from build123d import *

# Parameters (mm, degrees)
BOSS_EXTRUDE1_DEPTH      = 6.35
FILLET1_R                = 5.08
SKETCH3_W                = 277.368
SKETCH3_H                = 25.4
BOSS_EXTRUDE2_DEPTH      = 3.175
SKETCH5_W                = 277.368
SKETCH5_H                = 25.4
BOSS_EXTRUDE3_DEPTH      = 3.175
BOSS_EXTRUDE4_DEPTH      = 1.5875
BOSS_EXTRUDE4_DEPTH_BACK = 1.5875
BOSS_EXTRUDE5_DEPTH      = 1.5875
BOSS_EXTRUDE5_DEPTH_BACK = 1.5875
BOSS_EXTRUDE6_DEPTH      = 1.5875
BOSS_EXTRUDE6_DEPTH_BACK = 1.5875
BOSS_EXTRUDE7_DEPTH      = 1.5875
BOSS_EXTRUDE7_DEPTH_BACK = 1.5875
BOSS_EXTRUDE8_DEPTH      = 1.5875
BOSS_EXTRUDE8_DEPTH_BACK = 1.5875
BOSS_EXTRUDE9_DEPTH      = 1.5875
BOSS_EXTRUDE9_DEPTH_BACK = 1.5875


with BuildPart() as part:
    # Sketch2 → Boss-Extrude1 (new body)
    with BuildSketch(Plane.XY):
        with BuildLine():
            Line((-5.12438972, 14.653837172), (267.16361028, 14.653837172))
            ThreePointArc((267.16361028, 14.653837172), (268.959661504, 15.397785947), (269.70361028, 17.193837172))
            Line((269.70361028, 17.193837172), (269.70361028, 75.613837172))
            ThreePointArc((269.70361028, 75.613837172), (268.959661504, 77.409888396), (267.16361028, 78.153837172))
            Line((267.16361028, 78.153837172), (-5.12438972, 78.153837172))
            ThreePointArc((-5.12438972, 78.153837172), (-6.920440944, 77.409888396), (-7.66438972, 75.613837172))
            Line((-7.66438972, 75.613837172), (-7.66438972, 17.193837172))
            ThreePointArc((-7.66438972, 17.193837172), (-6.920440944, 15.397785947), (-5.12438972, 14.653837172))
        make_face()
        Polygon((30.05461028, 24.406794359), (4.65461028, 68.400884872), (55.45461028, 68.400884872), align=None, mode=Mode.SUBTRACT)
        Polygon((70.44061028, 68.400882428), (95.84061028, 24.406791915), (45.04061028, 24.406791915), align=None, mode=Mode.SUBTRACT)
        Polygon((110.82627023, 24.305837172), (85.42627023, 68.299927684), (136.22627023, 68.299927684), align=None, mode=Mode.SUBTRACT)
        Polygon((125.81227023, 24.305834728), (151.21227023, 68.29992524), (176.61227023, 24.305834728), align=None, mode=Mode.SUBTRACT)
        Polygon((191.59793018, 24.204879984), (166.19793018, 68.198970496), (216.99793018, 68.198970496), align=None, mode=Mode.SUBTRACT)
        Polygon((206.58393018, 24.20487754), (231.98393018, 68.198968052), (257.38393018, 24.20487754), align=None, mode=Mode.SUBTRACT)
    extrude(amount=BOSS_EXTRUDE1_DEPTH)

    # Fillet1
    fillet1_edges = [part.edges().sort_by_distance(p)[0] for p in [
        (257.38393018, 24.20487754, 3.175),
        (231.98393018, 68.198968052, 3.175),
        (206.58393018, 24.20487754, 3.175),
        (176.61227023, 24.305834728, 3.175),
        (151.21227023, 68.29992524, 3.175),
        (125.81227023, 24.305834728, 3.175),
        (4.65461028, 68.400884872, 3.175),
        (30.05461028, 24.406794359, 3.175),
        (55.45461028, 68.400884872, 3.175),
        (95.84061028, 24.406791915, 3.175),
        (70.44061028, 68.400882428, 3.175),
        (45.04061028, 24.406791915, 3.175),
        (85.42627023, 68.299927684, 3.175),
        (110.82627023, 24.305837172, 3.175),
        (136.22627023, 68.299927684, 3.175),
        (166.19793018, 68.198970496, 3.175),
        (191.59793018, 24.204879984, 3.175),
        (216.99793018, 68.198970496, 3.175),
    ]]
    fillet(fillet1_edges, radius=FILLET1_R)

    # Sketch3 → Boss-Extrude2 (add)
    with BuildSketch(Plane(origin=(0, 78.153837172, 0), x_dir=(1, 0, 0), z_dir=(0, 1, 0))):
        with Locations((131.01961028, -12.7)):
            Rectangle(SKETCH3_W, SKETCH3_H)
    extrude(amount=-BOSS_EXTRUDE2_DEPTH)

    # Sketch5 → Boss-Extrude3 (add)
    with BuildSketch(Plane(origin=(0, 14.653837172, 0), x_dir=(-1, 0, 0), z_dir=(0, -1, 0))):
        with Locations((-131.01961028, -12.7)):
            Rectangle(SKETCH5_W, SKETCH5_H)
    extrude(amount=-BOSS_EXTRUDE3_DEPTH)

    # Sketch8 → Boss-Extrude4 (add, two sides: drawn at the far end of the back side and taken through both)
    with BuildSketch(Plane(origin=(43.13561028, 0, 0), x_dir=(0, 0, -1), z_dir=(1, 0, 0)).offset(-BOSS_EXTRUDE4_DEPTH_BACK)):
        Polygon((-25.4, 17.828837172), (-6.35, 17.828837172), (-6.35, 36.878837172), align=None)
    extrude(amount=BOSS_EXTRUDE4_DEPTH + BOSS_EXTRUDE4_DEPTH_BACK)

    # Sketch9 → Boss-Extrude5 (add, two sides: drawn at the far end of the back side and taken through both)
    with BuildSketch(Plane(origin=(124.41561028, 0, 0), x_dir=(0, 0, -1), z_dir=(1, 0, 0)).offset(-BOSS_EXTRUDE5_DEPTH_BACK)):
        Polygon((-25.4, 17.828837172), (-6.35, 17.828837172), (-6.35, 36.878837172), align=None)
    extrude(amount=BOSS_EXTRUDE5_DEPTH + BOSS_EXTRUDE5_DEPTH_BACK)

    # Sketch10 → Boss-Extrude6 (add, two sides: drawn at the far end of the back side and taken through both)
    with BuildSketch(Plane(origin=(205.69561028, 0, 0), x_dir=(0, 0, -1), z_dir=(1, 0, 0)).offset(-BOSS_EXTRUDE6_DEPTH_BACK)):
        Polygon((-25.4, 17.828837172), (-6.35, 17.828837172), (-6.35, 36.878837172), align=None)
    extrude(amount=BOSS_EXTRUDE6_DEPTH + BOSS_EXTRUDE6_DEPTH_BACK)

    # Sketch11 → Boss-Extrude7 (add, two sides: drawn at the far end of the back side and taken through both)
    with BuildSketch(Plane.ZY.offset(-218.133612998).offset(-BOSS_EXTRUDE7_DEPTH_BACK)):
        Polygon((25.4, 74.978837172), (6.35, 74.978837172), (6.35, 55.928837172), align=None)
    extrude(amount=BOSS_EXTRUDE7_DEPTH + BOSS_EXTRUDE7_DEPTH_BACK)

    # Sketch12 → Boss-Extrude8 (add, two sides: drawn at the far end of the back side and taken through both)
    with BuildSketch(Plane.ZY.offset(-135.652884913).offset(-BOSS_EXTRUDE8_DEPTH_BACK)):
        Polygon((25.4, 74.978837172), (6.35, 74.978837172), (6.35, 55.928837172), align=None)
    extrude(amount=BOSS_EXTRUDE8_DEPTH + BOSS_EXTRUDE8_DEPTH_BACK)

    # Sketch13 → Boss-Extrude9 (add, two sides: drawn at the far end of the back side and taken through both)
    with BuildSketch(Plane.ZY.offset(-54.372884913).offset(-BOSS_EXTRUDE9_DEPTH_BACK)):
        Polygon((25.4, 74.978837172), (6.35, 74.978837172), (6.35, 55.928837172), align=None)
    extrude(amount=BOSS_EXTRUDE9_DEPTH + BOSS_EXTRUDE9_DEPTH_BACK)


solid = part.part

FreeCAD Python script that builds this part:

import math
import FreeCAD as App
import Part
import Sketcher
from FreeCAD import Vector
Q = App.Units.Quantity


def edges_at(feature, points):
    """Names of the edges that pass closest to the given points."""
    edges = feature.Shape.Edges
    near = lambda p: min(range(len(edges)), key=lambda i: edges[i].distToShape(Part.Vertex(*p))[0])
    return sorted({f"Edge{near(p) + 1}" for p in points})


def add_polygon(sketch, points):
    """Adds a closed chain of lines whose ends are joined by coincident constraints."""
    first, n = sketch.GeometryCount, len(points)
    for a, b in zip(points, points[1:] + points[:1]):
        sketch.addGeometry(Part.LineSegment(App.Vector(*a, 0), App.Vector(*b, 0)), False)
    for i in range(n):
        sketch.addConstraint(Sketcher.Constraint("Coincident", first + i, 2, first + (i + 1) % n, 1))

doc = App.newDocument("Part")
body = doc.addObject("PartDesign::Body", "Body")

# Sketch on XY plane
sketch1 = doc.addObject("Sketcher::SketchObject", "Sketch")
body.addObject(sketch1)
sketch1.AttachmentSupport = (doc.XY_Plane, [""])
sketch1.MapMode = "FlatFace"
sketch1.addGeometry(Part.LineSegment(Vector(-5.12439, 14.653837, 0), Vector(267.16361, 14.653837, 0)), False)  # 0
sketch1.addGeometry(Part.ArcOfCircle(Part.Circle(Vector(267.16361, 17.193837, 0), Vector(0, 0, 1), 2.54), math.radians(-90), math.radians(0)), False)  # 1
sketch1.addGeometry(Part.LineSegment(Vector(269.70361, 17.193837, 0), Vector(269.70361, 75.613837, 0)), False)  # 2
sketch1.addGeometry(Part.ArcOfCircle(Part.Circle(Vector(267.16361, 75.613837, 0), Vector(0, 0, 1), 2.54), math.radians(0), math.radians(90)), False)  # 3
sketch1.addGeometry(Part.LineSegment(Vector(267.16361, 78.153837, 0), Vector(-5.12439, 78.153837, 0)), False)  # 4
sketch1.addGeometry(Part.ArcOfCircle(Part.Circle(Vector(-5.12439, 75.613837, 0), Vector(0, 0, 1), 2.54), math.radians(90), math.radians(180)), False)  # 5
sketch1.addGeometry(Part.LineSegment(Vector(-7.66439, 75.613837, 0), Vector(-7.66439, 17.193837, 0)), False)  # 6
sketch1.addGeometry(Part.ArcOfCircle(Part.Circle(Vector(-5.12439, 17.193837, 0), Vector(0, 0, 1), 2.54), math.radians(180), math.radians(270)), False)  # 7
add_polygon(sketch1, [(176.61227, 24.305835), (125.81227, 24.305835), (151.21227, 68.299925)])  # lines 8-10
add_polygon(sketch1, [(216.99793, 68.19897), (191.59793, 24.20488), (166.19793, 68.19897)])  # lines 11-13
add_polygon(sketch1, [(257.38393, 24.204878), (206.58393, 24.204878), (231.98393, 68.198968)])  # lines 14-16
add_polygon(sketch1, [(55.45461, 68.400885), (30.05461, 24.406794), (4.65461, 68.400885)])  # lines 17-19
add_polygon(sketch1, [(45.04061, 24.406792), (70.44061, 68.400882), (95.84061, 24.406792)])  # lines 20-22
add_polygon(sketch1, [(136.22627, 68.299928), (110.82627, 24.305837), (85.42627, 68.299928)])  # lines 23-25
sketch1.addConstraint(Sketcher.Constraint("Tangent", 0, 2, 1, 1))
sketch1.addConstraint(Sketcher.Constraint("Tangent", 1, 2, 2, 1))
sketch1.addConstraint(Sketcher.Constraint("Tangent", 2, 2, 3, 1))
sketch1.addConstraint(Sketcher.Constraint("Tangent", 3, 2, 4, 1))
sketch1.addConstraint(Sketcher.Constraint("Tangent", 4, 2, 5, 1))
sketch1.addConstraint(Sketcher.Constraint("Tangent", 5, 2, 6, 1))
sketch1.addConstraint(Sketcher.Constraint("Tangent", 6, 2, 7, 1))
sketch1.addConstraint(Sketcher.Constraint("Tangent", 7, 2, 0, 1))
sketch1.addConstraint(Sketcher.Constraint("Horizontal", 0))
sketch1.addConstraint(Sketcher.Constraint("Vertical", 2))
sketch1.addConstraint(Sketcher.Constraint("Horizontal", 4))
sketch1.addConstraint(Sketcher.Constraint("Vertical", 6))
sketch1.addConstraint(Sketcher.Constraint("Horizontal", 8))
sketch1.addConstraint(Sketcher.Constraint("Horizontal", 13))
sketch1.addConstraint(Sketcher.Constraint("Horizontal", 14))
sketch1.addConstraint(Sketcher.Constraint("Horizontal", 19))
sketch1.addConstraint(Sketcher.Constraint("Horizontal", 22))
sketch1.addConstraint(Sketcher.Constraint("Horizontal", 25))
sketch1.addConstraint(Sketcher.Constraint("Equal", 1, 3))
sketch1.addConstraint(Sketcher.Constraint("Equal", 3, 5))
sketch1.addConstraint(Sketcher.Constraint("Equal", 5, 7))
sketch1.addConstraint(Sketcher.Constraint("Parallel", 9, 11))
sketch1.addConstraint(Sketcher.Constraint("Parallel", 10, 12))
sketch1.addConstraint(Sketcher.Constraint("Parallel", 11, 15))
sketch1.addConstraint(Sketcher.Constraint("Parallel", 12, 16))
sketch1.addConstraint(Sketcher.Constraint("Parallel", 15, 17))
sketch1.addConstraint(Sketcher.Constraint("Parallel", 16, 18))
sketch1.addConstraint(Sketcher.Constraint("Parallel", 17, 20))
sketch1.addConstraint(Sketcher.Constraint("Parallel", 18, 21))
sketch1.addConstraint(Sketcher.Constraint("Parallel", 20, 23))
sketch1.addConstraint(Sketcher.Constraint("Parallel", 21, 24))
sketch1.addConstraint(Sketcher.Constraint("Equal", 8, 13))
sketch1.addConstraint(Sketcher.Constraint("Equal", 13, 14))
sketch1.addConstraint(Sketcher.Constraint("Equal", 14, 19))
sketch1.addConstraint(Sketcher.Constraint("Equal", 19, 22))
sketch1.addConstraint(Sketcher.Constraint("Equal", 22, 25))
sketch1.addConstraint(Sketcher.Constraint("Equal", 9, 10))
sketch1.addConstraint(Sketcher.Constraint("Radius", 1, Q("0.1 in")))
sketch1.addConstraint(Sketcher.Constraint("DistanceX", 8, 2, 8, 1, Q("2 in")))
sketch1.addConstraint(Sketcher.Constraint("Distance", 9, Q("2 in")))
sketch1.addConstraint(Sketcher.Constraint("DistanceY", 2, 1, 2, 2, Q("2.3 in")))
sketch1.addConstraint(Sketcher.Constraint("DistanceX", 0, 1, 0, 2, Q("10.72 in")))
sketch1.addConstraint(Sketcher.Constraint("DistanceY", 7, 3, 8, 2, Q("0.2799999 in")))
sketch1.addConstraint(Sketcher.Constraint("DistanceX", 11, 2, 14, 2, Q("0.59 in")))
sketch1.addConstraint(Sketcher.Constraint("DistanceX", 19, 2, 20, 2, Q("0.59 in")))
sketch1.addConstraint(Sketcher.Constraint("DistanceX", 23, 2, 8, 2, Q("0.59 in")))
sketch1.addConstraint(Sketcher.Constraint("DistanceX", 7, 3, 17, 2, Q("1.385 in")))
sketch1.addConstraint(Sketcher.Constraint("DistanceX", -1, 1, 1, 3, 267.16361))
sketch1.addConstraint(Sketcher.Constraint("DistanceX", -1, 1, 8, 2, 125.81227))
sketch1.addConstraint(Sketcher.Constraint("DistanceX", -1, 1, 11, 2, 191.59793))
sketch1.addConstraint(Sketcher.Constraint("DistanceY", -1, 1, 11, 2, 24.20488))
sketch1.addConstraint(Sketcher.Constraint("DistanceY", -1, 1, 15, 2, 68.198968))
sketch1.addConstraint(Sketcher.Constraint("DistanceY", -1, 1, 21, 2, 24.406792))
sketch1.addConstraint(Sketcher.Constraint("DistanceY", 1, 3, 14, 2, 7.01104))
sketch1.addConstraint(Sketcher.Constraint("DistanceY", 17, 2, 20, 2, 43.994088))
sketch1.addConstraint(Sketcher.Constraint("DistanceY", 23, 2, 9, 2, 43.994088))
pad1 = doc.addObject("PartDesign::Pad", "Pad")
body.addObject(pad1)
pad1.Profile = sketch1
pad1.Length = Q("0.25 in")
doc.recompute()

fillet = doc.addObject("PartDesign::Fillet", "Fillet")
body.addObject(fillet)
fillet.Base = (pad1, edges_at(pad1, [
    (257.384, 24.205, 3.175),
    (231.984, 68.199, 3.175),
    (206.584, 24.205, 3.175),
    (176.612, 24.306, 3.175),
    (151.212, 68.3, 3.175),
    (125.812, 24.306, 3.175),
    (4.655, 68.401, 3.175),
    (30.055, 24.407, 3.175),
    (55.455, 68.401, 3.175),
    (95.841, 24.407, 3.175),
    (70.441, 68.401, 3.175),
    (45.041, 24.407, 3.175),
    (85.426, 68.3, 3.175),
    (110.826, 24.306, 3.175),
    (136.226, 68.3, 3.175),
    (166.198, 68.199, 3.175),
    (191.598, 24.205, 3.175),
    (216.998, 68.199, 3.175),
]))
fillet.Radius = Q("0.2 in")

# Sketch on XZ plane
sketch2 = doc.addObject("Sketcher::SketchObject", "Sketch001")
body.addObject(sketch2)
sketch2.AttachmentSupport = (doc.XZ_Plane, [""])
sketch2.MapMode = "FlatFace"
sketch2.AttachmentOffset = App.Placement(Vector(0, 0, -78.153837), App.Rotation())
add_polygon(sketch2, [(-7.66439, 0), (-7.66439, 25.4), (269.70361, 25.4), (269.70361, 0)])  # lines 0-3
sketch2.addConstraint(Sketcher.Constraint("Vertical", 0))
sketch2.addConstraint(Sketcher.Constraint("Horizontal", 1))
sketch2.addConstraint(Sketcher.Constraint("Vertical", 2))
sketch2.addConstraint(Sketcher.Constraint("Horizontal", 3))
sketch2.addConstraint(Sketcher.Constraint("PointOnObject", 2, 2, -1))
sketch2.addConstraint(Sketcher.Constraint("DistanceY", 0, 1, 0, 2, Q("1 in")))
sketch2.addConstraint(Sketcher.Constraint("DistanceX", 1, 1, 1, 2, Q("10.92 in")))
sketch2.addConstraint(Sketcher.Constraint("DistanceX", 0, 2, -1, 1, 7.66439))
pad2 = doc.addObject("PartDesign::Pad", "Pad001")
body.addObject(pad2)
pad2.Profile = sketch2
pad2.Length = Q("0.125 in")

# Sketch on XZ plane
sketch3 = doc.addObject("Sketcher::SketchObject", "Sketch002")
body.addObject(sketch3)
sketch3.AttachmentSupport = (doc.XZ_Plane, [""])
sketch3.MapMode = "FlatFace"
sketch3.AttachmentOffset = App.Placement(Vector(0, 0, -14.653837), App.Rotation())
add_polygon(sketch3, [(269.70361, 0), (269.70361, 25.4), (-7.66439, 25.4), (-7.66439, 0)])  # lines 0-3
sketch3.addConstraint(Sketcher.Constraint("Vertical", 0))
sketch3.addConstraint(Sketcher.Constraint("Horizontal", 1))
sketch3.addConstraint(Sketcher.Constraint("Vertical", 2))
sketch3.addConstraint(Sketcher.Constraint("Horizontal", 3))
sketch3.addConstraint(Sketcher.Constraint("PointOnObject", 2, 2, -1))
sketch3.addConstraint(Sketcher.Constraint("DistanceY", 0, 1, 0, 2, Q("1 in")))
sketch3.addConstraint(Sketcher.Constraint("DistanceX", 1, 2, 1, 1, Q("10.92 in")))
sketch3.addConstraint(Sketcher.Constraint("DistanceX", -1, 1, 0, 2, 269.70361))
pad3 = doc.addObject("PartDesign::Pad", "Pad002")
body.addObject(pad3)
pad3.Profile = sketch3
pad3.Length = Q("0.125 in")
pad3.Reversed = True

# Sketch on YZ plane
sketch4 = doc.addObject("Sketcher::SketchObject", "Sketch003")
body.addObject(sketch4)
sketch4.AttachmentSupport = (doc.YZ_Plane, [""])
sketch4.MapMode = "FlatFace"
sketch4.AttachmentOffset = App.Placement(Vector(0, 0, 43.13561), App.Rotation())
add_polygon(sketch4, [(17.828837, 25.4), (17.828837, 6.35), (36.878837, 6.35)])  # lines 0-2
sketch4.addConstraint(Sketcher.Constraint("Vertical", 0))
sketch4.addConstraint(Sketcher.Constraint("Horizontal", 1))
sketch4.addConstraint(Sketcher.Constraint("Equal", 1, 0))
sketch4.addConstraint(Sketcher.Constraint("DistanceY", -1, 1, 2, 2, Q("1 in")))
sketch4.addConstraint(Sketcher.Constraint("DistanceX", 1, 1, 1, 2, Q("0.75 in")))
sketch4.addConstraint(Sketcher.Constraint("DistanceX", -1, 1, 0, 2, 17.828837))
pad4 = doc.addObject("PartDesign::Pad", "Pad003")
body.addObject(pad4)
pad4.Profile = sketch4
pad4.Type = "TwoLengths"
pad4.Length = Q("0.0625 in")
pad4.Length2 = Q("0.0625 in")

# Sketch on YZ plane
sketch5 = doc.addObject("Sketcher::SketchObject", "Sketch004")
body.addObject(sketch5)
sketch5.AttachmentSupport = (doc.YZ_Plane, [""])
sketch5.MapMode = "FlatFace"
sketch5.AttachmentOffset = App.Placement(Vector(0, 0, 124.41561), App.Rotation())
add_polygon(sketch5, [(17.828837, 25.4), (17.828837, 6.35), (36.878837, 6.35)])  # lines 0-2
sketch5.addConstraint(Sketcher.Constraint("Vertical", 0))
sketch5.addConstraint(Sketcher.Constraint("Horizontal", 1))
sketch5.addConstraint(Sketcher.Constraint("Equal", 1, 0))
sketch5.addConstraint(Sketcher.Constraint("DistanceY", -1, 1, 2, 2, Q("1 in")))
sketch5.addConstraint(Sketcher.Constraint("DistanceX", 1, 1, 1, 2, Q("0.75 in")))
sketch5.addConstraint(Sketcher.Constraint("DistanceX", -1, 1, 0, 2, 17.828837))
pad5 = doc.addObject("PartDesign::Pad", "Pad004")
body.addObject(pad5)
pad5.Profile = sketch5
pad5.Type = "TwoLengths"
pad5.Length = Q("0.0625 in")
pad5.Length2 = Q("0.0625 in")

# Sketch on YZ plane
sketch6 = doc.addObject("Sketcher::SketchObject", "Sketch005")
body.addObject(sketch6)
sketch6.AttachmentSupport = (doc.YZ_Plane, [""])
sketch6.MapMode = "FlatFace"
sketch6.AttachmentOffset = App.Placement(Vector(0, 0, 205.69561), App.Rotation())
add_polygon(sketch6, [(17.828837, 25.4), (17.828837, 6.35), (36.878837, 6.35)])  # lines 0-2
sketch6.addConstraint(Sketcher.Constraint("Vertical", 0))
sketch6.addConstraint(Sketcher.Constraint("Horizontal", 1))
sketch6.addConstraint(Sketcher.Constraint("Equal", 1, 0))
sketch6.addConstraint(Sketcher.Constraint("DistanceY", -1, 1, 2, 2, Q("1 in")))
sketch6.addConstraint(Sketcher.Constraint("DistanceX", 1, 1, 1, 2, Q("0.75 in")))
sketch6.addConstraint(Sketcher.Constraint("DistanceX", -1, 1, 0, 2, 17.828837))
pad6 = doc.addObject("PartDesign::Pad", "Pad005")
body.addObject(pad6)
pad6.Profile = sketch6
pad6.Type = "TwoLengths"
pad6.Length = Q("0.0625 in")
pad6.Length2 = Q("0.0625 in")

# Sketch on YZ plane
sketch7 = doc.addObject("Sketcher::SketchObject", "Sketch006")
body.addObject(sketch7)
sketch7.AttachmentSupport = (doc.YZ_Plane, [""])
sketch7.MapMode = "FlatFace"
sketch7.AttachmentOffset = App.Placement(Vector(0, 0, 218.133613), App.Rotation())
add_polygon(sketch7, [(74.978837, 25.4), (74.978837, 6.35), (55.928837, 6.35)])  # lines 0-2
sketch7.addConstraint(Sketcher.Constraint("Vertical", 0))
sketch7.addConstraint(Sketcher.Constraint("Horizontal", 1))
sketch7.addConstraint(Sketcher.Constraint("Equal", 1, 0))
sketch7.addConstraint(Sketcher.Constraint("DistanceY", -1, 1, 2, 2, Q("1 in")))
sketch7.addConstraint(Sketcher.Constraint("DistanceX", 1, 2, 1, 1, Q("0.75 in")))
sketch7.addConstraint(Sketcher.Constraint("DistanceX", -1, 1, 0, 2, 74.978837))
pad7 = doc.addObject("PartDesign::Pad", "Pad006")
body.addObject(pad7)
pad7.Profile = sketch7
pad7.Type = "TwoLengths"
pad7.Length = Q("0.0625 in")
pad7.Length2 = Q("0.0625 in")
pad7.Reversed = True

# Sketch on YZ plane
sketch8 = doc.addObject("Sketcher::SketchObject", "Sketch007")
body.addObject(sketch8)
sketch8.AttachmentSupport = (doc.YZ_Plane, [""])
sketch8.MapMode = "FlatFace"
sketch8.AttachmentOffset = App.Placement(Vector(0, 0, 135.652885), App.Rotation())
add_polygon(sketch8, [(74.978837, 25.4), (74.978837, 6.35), (55.928837, 6.35)])  # lines 0-2
sketch8.addConstraint(Sketcher.Constraint("Vertical", 0))
sketch8.addConstraint(Sketcher.Constraint("Horizontal", 1))
sketch8.addConstraint(Sketcher.Constraint("Equal", 1, 0))
sketch8.addConstraint(Sketcher.Constraint("DistanceY", -1, 1, 2, 2, Q("1 in")))
sketch8.addConstraint(Sketcher.Constraint("DistanceX", 1, 2, 1, 1, Q("0.75 in")))
sketch8.addConstraint(Sketcher.Constraint("DistanceX", -1, 1, 0, 2, 74.978837))
pad8 = doc.addObject("PartDesign::Pad", "Pad007")
body.addObject(pad8)
pad8.Profile = sketch8
pad8.Type = "TwoLengths"
pad8.Length = Q("0.0625 in")
pad8.Length2 = Q("0.0625 in")
pad8.Reversed = True

# Sketch on YZ plane
sketch9 = doc.addObject("Sketcher::SketchObject", "Sketch008")
body.addObject(sketch9)
sketch9.AttachmentSupport = (doc.YZ_Plane, [""])
sketch9.MapMode = "FlatFace"
sketch9.AttachmentOffset = App.Placement(Vector(0, 0, 54.372885), App.Rotation())
add_polygon(sketch9, [(74.978837, 25.4), (74.978837, 6.35), (55.928837, 6.35)])  # lines 0-2
sketch9.addConstraint(Sketcher.Constraint("Vertical", 0))
sketch9.addConstraint(Sketcher.Constraint("Horizontal", 1))
sketch9.addConstraint(Sketcher.Constraint("Equal", 1, 0))
sketch9.addConstraint(Sketcher.Constraint("DistanceY", -1, 1, 2, 2, Q("1 in")))
sketch9.addConstraint(Sketcher.Constraint("DistanceX", 1, 2, 1, 1, Q("0.75 in")))
sketch9.addConstraint(Sketcher.Constraint("DistanceX", -1, 1, 0, 2, 74.978837))
pad9 = doc.addObject("PartDesign::Pad", "Pad008")
body.addObject(pad9)
pad9.Profile = sketch9
pad9.Type = "TwoLengths"
pad9.Length = Q("0.0625 in")
pad9.Length2 = Q("0.0625 in")
pad9.Reversed = True

doc.recompute()
